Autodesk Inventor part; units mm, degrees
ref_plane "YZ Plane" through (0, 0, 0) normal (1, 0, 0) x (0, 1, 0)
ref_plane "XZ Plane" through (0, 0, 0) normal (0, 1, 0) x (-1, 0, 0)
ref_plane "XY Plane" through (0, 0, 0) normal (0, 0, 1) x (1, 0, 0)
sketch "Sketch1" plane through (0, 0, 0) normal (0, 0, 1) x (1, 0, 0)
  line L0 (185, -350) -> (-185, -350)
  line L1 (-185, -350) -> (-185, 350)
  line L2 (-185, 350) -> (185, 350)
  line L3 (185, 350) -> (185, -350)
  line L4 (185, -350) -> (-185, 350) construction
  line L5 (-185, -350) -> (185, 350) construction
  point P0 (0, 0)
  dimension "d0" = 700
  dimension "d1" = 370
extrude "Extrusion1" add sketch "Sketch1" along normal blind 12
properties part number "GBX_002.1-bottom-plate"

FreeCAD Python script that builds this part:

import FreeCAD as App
import Part
import Sketcher

V = App.Vector

doc = App.newDocument("Part")
params = doc.addObject("Spreadsheet::Sheet", "Params")
for row, (alias, value) in enumerate([
    ("sketch1_width", "370 mm"),
    ("sketch1_height", "700 mm"),
    ("pad1_length", "12 mm"),
], start=1):
    params.set(f"A{row}", alias)
    params.set(f"B{row}", "=" + value)
    params.setAlias(f"B{row}", alias)

body = doc.addObject("PartDesign::Body", "Body")

# Sketch on XY plane
sketch1 = doc.addObject("Sketcher::SketchObject", "Sketch")
body.addObject(sketch1)
sketch1.AttachmentSupport = (doc.XY_Plane, [""])
sketch1.MapMode = "FlatFace"
sketch1.addGeometry(Part.LineSegment(V(-185, -350, 0), V(185, -350, 0)), False)
sketch1.addGeometry(Part.LineSegment(V(185, -350, 0), V(185, 350, 0)), False)
sketch1.addGeometry(Part.LineSegment(V(185, 350, 0), V(-185, 350, 0)), False)
sketch1.addGeometry(Part.LineSegment(V(-185, 350, 0), V(-185, -350, 0)), False)
sketch1.addConstraint(Sketcher.Constraint("Coincident", 0, 2, 1, 1))
sketch1.addConstraint(Sketcher.Constraint("Coincident", 1, 2, 2, 1))
sketch1.addConstraint(Sketcher.Constraint("Coincident", 2, 2, 3, 1))
sketch1.addConstraint(Sketcher.Constraint("Coincident", 3, 2, 0, 1))
sketch1.addConstraint(Sketcher.Constraint("Horizontal", 0))
sketch1.addConstraint(Sketcher.Constraint("Vertical", 1))
sketch1.addConstraint(Sketcher.Constraint("Horizontal", 2))
sketch1.addConstraint(Sketcher.Constraint("Vertical", 3))
sketch1.addConstraint(Sketcher.Constraint("Symmetric", 0, 2, 2, 2, -1, 1))
sketch1.addConstraint(Sketcher.Constraint("DistanceX", 0, 1, 0, 2, 370.0))
sketch1.addConstraint(Sketcher.Constraint("DistanceY", 1, 1, 1, 2, 700.0))
sketch1.setExpression("Constraints[9]", "Params.sketch1_width")
sketch1.setExpression("Constraints[10]", "Params.sketch1_height")
pad1 = doc.addObject("PartDesign::Pad", "Pad")
body.addObject(pad1)
pad1.Profile = sketch1
pad1.setExpression("Length", "Params.pad1_length")

doc.recompute()
